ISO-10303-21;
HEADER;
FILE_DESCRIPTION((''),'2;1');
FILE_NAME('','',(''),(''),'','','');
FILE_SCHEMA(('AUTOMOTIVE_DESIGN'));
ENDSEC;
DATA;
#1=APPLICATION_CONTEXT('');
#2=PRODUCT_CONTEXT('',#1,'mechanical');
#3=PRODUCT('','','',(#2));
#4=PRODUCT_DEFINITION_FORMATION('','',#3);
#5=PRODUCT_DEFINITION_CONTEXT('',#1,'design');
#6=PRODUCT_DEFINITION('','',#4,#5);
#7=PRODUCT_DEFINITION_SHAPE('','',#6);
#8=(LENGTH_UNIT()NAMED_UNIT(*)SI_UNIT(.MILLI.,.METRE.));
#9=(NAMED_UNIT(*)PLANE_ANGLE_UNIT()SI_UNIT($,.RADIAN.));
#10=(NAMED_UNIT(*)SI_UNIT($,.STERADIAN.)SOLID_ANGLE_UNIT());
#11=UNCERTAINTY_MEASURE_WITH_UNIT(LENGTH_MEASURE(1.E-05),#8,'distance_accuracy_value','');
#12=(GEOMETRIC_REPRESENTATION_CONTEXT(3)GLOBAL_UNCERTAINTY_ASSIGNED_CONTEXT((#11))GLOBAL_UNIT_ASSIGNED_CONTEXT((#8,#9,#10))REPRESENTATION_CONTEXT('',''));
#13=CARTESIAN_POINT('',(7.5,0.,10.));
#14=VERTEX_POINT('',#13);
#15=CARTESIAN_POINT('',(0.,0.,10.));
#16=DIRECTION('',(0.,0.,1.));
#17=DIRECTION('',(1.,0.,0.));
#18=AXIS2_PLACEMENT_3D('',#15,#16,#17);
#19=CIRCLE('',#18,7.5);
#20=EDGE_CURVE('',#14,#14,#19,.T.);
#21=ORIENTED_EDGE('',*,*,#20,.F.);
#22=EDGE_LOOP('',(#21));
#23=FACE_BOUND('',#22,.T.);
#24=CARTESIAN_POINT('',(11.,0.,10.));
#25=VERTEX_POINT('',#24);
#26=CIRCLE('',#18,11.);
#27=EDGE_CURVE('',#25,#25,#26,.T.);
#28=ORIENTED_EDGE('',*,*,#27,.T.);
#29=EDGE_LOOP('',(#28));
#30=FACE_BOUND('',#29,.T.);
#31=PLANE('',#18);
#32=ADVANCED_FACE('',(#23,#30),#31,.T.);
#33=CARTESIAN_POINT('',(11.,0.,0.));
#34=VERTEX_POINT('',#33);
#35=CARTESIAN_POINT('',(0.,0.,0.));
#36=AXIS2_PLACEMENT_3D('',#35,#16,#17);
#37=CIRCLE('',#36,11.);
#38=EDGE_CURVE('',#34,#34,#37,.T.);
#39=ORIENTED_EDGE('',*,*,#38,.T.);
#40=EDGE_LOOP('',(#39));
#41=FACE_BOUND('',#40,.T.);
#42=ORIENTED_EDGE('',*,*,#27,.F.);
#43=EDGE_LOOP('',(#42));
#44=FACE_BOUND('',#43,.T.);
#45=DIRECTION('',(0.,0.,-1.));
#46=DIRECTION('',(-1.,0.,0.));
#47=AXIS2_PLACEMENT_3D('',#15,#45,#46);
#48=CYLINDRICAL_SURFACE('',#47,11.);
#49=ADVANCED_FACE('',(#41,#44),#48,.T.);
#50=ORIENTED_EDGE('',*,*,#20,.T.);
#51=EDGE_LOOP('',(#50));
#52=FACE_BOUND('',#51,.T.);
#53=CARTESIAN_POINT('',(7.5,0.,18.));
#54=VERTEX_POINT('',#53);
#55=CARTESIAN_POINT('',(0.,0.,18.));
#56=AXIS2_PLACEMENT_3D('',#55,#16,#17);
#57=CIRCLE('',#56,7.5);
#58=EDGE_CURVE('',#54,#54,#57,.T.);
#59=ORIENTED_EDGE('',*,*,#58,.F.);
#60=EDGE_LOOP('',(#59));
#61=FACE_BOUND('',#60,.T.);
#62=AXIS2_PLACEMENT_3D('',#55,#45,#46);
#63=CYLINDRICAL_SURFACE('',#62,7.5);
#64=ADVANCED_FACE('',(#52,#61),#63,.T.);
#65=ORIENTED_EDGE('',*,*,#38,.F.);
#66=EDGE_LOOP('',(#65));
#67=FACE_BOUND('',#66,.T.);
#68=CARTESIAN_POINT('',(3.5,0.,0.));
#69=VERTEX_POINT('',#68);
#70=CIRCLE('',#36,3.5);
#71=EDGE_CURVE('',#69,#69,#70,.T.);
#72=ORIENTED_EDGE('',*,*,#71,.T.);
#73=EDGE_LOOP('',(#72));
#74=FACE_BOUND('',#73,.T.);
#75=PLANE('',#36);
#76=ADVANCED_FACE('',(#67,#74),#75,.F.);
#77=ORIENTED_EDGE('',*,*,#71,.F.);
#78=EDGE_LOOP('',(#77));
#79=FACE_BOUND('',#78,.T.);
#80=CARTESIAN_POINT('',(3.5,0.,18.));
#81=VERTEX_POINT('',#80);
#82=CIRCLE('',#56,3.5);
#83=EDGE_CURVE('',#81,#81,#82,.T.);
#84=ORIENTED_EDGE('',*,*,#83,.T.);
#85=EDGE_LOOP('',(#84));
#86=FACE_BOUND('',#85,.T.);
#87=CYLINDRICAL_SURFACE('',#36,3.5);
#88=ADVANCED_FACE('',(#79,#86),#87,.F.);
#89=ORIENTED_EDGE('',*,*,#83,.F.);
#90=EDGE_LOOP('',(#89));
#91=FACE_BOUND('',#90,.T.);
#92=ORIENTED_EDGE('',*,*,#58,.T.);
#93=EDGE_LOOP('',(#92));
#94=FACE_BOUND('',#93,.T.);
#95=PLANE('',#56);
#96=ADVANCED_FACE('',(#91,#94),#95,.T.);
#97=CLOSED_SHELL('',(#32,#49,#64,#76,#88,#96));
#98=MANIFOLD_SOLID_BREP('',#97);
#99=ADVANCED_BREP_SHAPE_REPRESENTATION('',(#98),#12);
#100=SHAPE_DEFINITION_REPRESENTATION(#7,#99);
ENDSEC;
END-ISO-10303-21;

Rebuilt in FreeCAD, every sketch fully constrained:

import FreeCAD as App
import Part
import Sketcher
from FreeCAD import Vector
Q = App.Units.Quantity

doc = App.newDocument("Part")
body = doc.addObject("PartDesign::Body", "Body")

sketch1 = body.newObject("Sketcher::SketchObject", "Sketch")
sketch1.AttachmentSupport = (doc.getObject("XY_Plane"), [""])
sketch1.MapMode = "FlatFace"
sketch1.addGeometry(Part.Circle(Vector(0, 0, 0), Vector(0, 0, 1), 11), False)
sketch1.addConstraint(Sketcher.Constraint("Coincident", 0, 3, -1, 1))
sketch1.addConstraint(Sketcher.Constraint("Diameter", 0, Q("22 mm")))
pad1 = body.newObject("PartDesign::Pad", "Pad")
pad1.Profile = sketch1
pad1.Length = 10

sketch2 = body.newObject("Sketcher::SketchObject", "Sketch001")
sketch2.AttachmentSupport = (doc.getObject("XY_Plane"), [""])
sketch2.MapMode = "FlatFace"
sketch2.AttachmentOffset = App.Placement(Vector(0, 0, 10), App.Rotation())
sketch2.addGeometry(Part.Circle(Vector(0, 0, 0), Vector(0, 0, 1), 8), False)
sketch2.addConstraint(Sketcher.Constraint("Coincident", 0, 3, -1, 1))
sketch2.addConstraint(Sketcher.Constraint("Diameter", 0, Q("15 mm")))
pad2 = body.newObject("PartDesign::Pad", "Pad001")
pad2.Profile = sketch2
pad2.Length = 8

sketch3 = body.newObject("Sketcher::SketchObject", "Sketch002")
sketch3.AttachmentSupport = (doc.getObject("XY_Plane"), [""])
sketch3.MapMode = "FlatFace"
sketch3.AttachmentOffset = App.Placement(Vector(0, 0, 18), App.Rotation())
sketch3.addGeometry(Part.Circle(Vector(0, 0, 0), Vector(0, 0, 1), 3.5), False)
sketch3.addConstraint(Sketcher.Constraint("Coincident", 0, 3, -1, 1))
sketch3.addConstraint(Sketcher.Constraint("Diameter", 0, Q("7 mm")))
pocket1 = body.newObject("PartDesign::Pocket", "Pocket")
pocket1.Profile = sketch3
pocket1.Type = "ThroughAll"

doc.recompute()
